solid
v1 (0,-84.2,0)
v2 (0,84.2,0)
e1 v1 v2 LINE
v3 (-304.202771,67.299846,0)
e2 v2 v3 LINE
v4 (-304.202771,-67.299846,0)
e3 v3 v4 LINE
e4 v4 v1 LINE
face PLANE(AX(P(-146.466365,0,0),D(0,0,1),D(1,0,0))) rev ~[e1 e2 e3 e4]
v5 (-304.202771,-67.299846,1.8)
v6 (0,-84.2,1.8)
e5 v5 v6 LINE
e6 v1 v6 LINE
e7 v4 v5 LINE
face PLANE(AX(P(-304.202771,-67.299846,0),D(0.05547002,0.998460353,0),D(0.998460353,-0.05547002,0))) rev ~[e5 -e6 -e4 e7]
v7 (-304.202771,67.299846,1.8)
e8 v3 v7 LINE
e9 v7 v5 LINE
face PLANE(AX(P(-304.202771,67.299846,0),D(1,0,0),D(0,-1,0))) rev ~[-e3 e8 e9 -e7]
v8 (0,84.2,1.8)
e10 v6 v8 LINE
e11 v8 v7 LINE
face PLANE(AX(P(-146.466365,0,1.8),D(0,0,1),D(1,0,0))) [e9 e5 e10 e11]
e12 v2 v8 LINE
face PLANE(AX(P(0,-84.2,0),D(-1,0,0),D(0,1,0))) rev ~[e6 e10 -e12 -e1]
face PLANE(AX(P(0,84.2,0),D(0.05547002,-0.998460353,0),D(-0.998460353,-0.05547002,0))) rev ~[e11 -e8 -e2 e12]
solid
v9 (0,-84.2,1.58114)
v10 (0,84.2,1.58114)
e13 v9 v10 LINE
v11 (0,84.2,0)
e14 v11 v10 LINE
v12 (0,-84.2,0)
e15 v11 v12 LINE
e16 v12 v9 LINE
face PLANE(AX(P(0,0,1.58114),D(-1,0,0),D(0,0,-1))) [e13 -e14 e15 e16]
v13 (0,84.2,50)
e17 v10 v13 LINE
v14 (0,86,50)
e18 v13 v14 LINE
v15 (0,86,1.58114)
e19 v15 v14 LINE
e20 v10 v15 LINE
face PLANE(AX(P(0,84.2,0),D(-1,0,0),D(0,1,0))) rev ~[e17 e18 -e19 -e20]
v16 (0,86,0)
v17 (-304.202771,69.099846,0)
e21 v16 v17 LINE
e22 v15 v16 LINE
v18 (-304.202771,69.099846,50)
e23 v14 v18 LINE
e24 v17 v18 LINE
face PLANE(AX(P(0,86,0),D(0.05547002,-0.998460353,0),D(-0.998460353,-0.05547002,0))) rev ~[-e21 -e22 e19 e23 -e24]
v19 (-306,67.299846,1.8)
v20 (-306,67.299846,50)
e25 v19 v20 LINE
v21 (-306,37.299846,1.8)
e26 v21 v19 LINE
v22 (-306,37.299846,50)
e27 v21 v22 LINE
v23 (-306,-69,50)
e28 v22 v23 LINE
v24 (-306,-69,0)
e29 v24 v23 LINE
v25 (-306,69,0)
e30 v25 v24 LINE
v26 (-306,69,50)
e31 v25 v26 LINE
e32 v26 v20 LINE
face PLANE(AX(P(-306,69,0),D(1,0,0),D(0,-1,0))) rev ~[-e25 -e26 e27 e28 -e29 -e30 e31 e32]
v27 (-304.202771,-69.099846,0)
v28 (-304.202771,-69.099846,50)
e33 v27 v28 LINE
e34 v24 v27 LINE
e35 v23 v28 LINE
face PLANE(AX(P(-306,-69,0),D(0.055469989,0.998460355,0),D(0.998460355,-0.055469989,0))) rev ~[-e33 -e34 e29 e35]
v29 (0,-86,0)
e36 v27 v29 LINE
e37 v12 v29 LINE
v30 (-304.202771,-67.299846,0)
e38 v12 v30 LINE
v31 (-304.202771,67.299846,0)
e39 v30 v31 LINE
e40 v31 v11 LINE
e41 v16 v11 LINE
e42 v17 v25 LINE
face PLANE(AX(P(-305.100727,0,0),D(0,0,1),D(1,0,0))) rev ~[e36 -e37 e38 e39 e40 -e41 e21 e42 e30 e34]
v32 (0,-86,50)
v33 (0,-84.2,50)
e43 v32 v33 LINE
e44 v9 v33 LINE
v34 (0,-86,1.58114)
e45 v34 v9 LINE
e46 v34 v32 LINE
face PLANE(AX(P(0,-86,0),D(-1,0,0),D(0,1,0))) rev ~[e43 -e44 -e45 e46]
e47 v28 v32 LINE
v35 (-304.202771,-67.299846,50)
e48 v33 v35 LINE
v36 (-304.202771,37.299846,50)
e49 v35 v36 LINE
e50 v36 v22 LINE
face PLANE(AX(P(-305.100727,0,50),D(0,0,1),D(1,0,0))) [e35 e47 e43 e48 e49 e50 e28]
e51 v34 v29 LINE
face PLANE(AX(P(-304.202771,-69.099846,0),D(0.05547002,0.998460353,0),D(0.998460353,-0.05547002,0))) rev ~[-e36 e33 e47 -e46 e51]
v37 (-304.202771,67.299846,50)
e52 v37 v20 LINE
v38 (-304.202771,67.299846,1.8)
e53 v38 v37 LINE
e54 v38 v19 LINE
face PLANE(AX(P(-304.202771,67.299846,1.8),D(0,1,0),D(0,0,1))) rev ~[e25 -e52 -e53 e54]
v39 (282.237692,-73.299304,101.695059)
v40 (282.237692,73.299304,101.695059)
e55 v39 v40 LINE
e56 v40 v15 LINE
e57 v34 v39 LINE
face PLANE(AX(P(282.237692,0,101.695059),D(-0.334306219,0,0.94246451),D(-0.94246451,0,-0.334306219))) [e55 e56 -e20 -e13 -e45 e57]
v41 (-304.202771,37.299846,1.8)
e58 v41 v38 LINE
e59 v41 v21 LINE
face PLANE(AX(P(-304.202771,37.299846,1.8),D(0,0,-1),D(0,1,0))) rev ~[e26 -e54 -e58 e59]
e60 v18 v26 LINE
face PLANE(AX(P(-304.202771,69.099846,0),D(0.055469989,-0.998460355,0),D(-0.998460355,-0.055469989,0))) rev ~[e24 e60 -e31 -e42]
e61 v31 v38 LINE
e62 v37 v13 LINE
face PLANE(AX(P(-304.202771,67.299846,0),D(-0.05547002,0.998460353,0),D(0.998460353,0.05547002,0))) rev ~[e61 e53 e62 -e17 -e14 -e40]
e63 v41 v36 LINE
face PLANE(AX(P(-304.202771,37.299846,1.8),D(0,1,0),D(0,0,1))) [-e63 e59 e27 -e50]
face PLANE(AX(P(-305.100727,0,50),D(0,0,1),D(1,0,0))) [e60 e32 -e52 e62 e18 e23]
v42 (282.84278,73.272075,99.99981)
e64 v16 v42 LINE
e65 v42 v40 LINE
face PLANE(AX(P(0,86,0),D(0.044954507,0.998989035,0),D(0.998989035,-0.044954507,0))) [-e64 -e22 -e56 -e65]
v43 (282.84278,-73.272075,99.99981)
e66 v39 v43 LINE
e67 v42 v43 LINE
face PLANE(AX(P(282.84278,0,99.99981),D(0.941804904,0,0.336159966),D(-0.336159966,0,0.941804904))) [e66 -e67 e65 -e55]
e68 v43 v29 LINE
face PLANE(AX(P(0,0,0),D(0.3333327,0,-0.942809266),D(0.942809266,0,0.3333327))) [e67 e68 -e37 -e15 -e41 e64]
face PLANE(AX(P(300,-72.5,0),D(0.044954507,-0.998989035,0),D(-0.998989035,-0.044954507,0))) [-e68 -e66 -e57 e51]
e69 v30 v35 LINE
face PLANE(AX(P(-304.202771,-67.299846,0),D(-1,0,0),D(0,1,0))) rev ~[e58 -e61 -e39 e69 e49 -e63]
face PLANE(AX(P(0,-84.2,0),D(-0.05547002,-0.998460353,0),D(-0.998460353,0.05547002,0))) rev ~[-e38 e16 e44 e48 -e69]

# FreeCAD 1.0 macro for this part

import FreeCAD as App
import Part
import Sketcher

V = App.Vector
Q = App.Units.Quantity

doc = App.newDocument("Part")
body = doc.addObject("PartDesign::Body", "Body")

# Sketch on XZ plane
sketch1 = doc.addObject("Sketcher::SketchObject", "Sketch")
body.addObject(sketch1)
sketch1.AttachmentSupport = (doc.XZ_Plane, [""])
sketch1.MapMode = "FlatFace"
sketch1.addGeometry([
    Part.LineSegment(V(0, 1.58114, 0), V(0, 0, 0)),
    Part.LineSegment(V(0, 0, 0), V(282.84278, 99.99981, 0)),
    Part.LineSegment(V(282.84278, 99.99981, 0), V(282.237692, 101.695059, 0)),
    Part.LineSegment(V(282.237692, 101.695059, 0), V(0, 1.58114, 0)),
], False)
sketch1.addConstraint([
    Sketcher.Constraint("Coincident", 0, 2, 1, 1),
    Sketcher.Constraint("Coincident", 1, 2, 2, 1),
    Sketcher.Constraint("Coincident", 2, 2, 3, 1),
    Sketcher.Constraint("Coincident", 3, 2, 0, 1),
    Sketcher.Constraint("Vertical", 0),
    Sketcher.Constraint("Coincident", 0, 2, -1, 1),
    Sketcher.Constraint("Distance", 1, Q("300 mm")),
    Sketcher.Constraint("Distance", 2, Q("1.8 mm")),
    Sketcher.Constraint("DistanceY", 0, 2, 0, 1, Q("1.58114 mm")),
    Sketcher.Constraint("DistanceX", -1, 1, 1, 2, Q("282.84278 mm")),
    Sketcher.Constraint("DistanceX", -1, 1, 2, 2, Q("282.237692 mm")),
])
pad1 = doc.addObject("PartDesign::Pad", "Pad")
body.addObject(pad1)
pad1.Profile = sketch1
pad1.Length = 172
pad1.Midplane = True

# Sketch on XY plane
sketch2 = doc.addObject("Sketcher::SketchObject", "Sketch001")
body.addObject(sketch2)
sketch2.AttachmentSupport = (doc.XY_Plane, [""])
sketch2.MapMode = "FlatFace"
sketch2.addGeometry([
    Part.LineSegment(V(300, -72.5, 0), V(0, -86, 0)),  # 0
    Part.LineSegment(V(0, -86, 0), V(300, -86, 0)),  # 1
    Part.LineSegment(V(300, -86, 0), V(300, -72.5, 0)),  # 2
    Part.LineSegment(V(300, 86, 0), V(0, 86, 0)),  # 3
    Part.LineSegment(V(0, 86, 0), V(300, 72.5, 0)),  # 4
    Part.LineSegment(V(300, 72.5, 0), V(300, 86, 0)),  # 5
], False)
sketch2.addConstraint([
    Sketcher.Constraint("Coincident", 0, 2, 1, 1),
    Sketcher.Constraint("Coincident", 1, 2, 2, 1),
    Sketcher.Constraint("Coincident", 2, 2, 0, 1),
    Sketcher.Constraint("Coincident", 3, 2, 4, 1),
    Sketcher.Constraint("Coincident", 4, 2, 5, 1),
    Sketcher.Constraint("Coincident", 5, 2, 3, 1),
    Sketcher.Constraint("Horizontal", 1),
    Sketcher.Constraint("Vertical", 2),
    Sketcher.Constraint("Horizontal", 3),
    Sketcher.Constraint("Vertical", 5),
    Sketcher.Constraint("Symmetric", 0, 2, 3, 2, -1, 1),
    Sketcher.Constraint("Symmetric", 2, 2, 4, 2, -1),
    Sketcher.Constraint("PointOnObject", 0, 2, -2),
    Sketcher.Constraint("DistanceX", 1, 1, 1, 2, Q("300 mm")),
    Sketcher.Constraint("DistanceY", 2, 1, 2, 2, Q("13.5 mm")),
    Sketcher.Constraint("DistanceY", 0, 2, -1, 1, Q("86 mm")),
])
pocket1 = doc.addObject("PartDesign::Pocket", "Pocket")
body.addObject(pocket1)
pocket1.Profile = sketch2
pocket1.Length = 121
pocket1.Reversed = True

# Sketch on XY plane
sketch3 = doc.addObject("Sketcher::SketchObject", "Sketch002")
body.addObject(sketch3)
sketch3.AttachmentSupport = (doc.XY_Plane, [""])
sketch3.MapMode = "FlatFace"
sketch3.addGeometry([
    Part.LineSegment(V(-306, -69, 0), V(-304.202771, -69.099846, 0)),  # 0
    Part.LineSegment(V(-304.202771, -69.099846, 0), V(0, -86, 0)),  # 1
    Part.LineSegment(V(0, -86, 0), V(0, -84.2, 0)),  # 2
    Part.LineSegment(V(0, -84.2, 0), V(-304.202771, -67.299846, 0)),  # 3
    Part.LineSegment(V(-304.202771, -67.299846, 0), V(-304.202771, 67.299846, 0)),  # 4
    Part.LineSegment(V(-304.202771, 67.299846, 0), V(0, 84.2, 0)),  # 5
    Part.LineSegment(V(0, 84.2, 0), V(0, 86, 0)),  # 6
    Part.LineSegment(V(0, 86, 0), V(-304.202771, 69.099846, 0)),  # 7
    Part.LineSegment(V(-304.202771, 69.099846, 0), V(-306, 69, 0)),  # 8
    Part.LineSegment(V(-306, 69, 0), V(-306, -69, 0)),  # 9
], False)
sketch3.addConstraint([
    Sketcher.Constraint("Coincident", 0, 2, 1, 1),
    Sketcher.Constraint("Coincident", 1, 2, 2, 1),
    Sketcher.Constraint("Coincident", 2, 2, 3, 1),
    Sketcher.Constraint("Coincident", 3, 2, 4, 1),
    Sketcher.Constraint("Coincident", 4, 2, 5, 1),
    Sketcher.Constraint("Coincident", 5, 2, 6, 1),
    Sketcher.Constraint("Coincident", 6, 2, 7, 1),
    Sketcher.Constraint("Coincident", 7, 2, 8, 1),
    Sketcher.Constraint("Coincident", 8, 2, 9, 1),
    Sketcher.Constraint("Coincident", 9, 2, 0, 1),
    Sketcher.Constraint("Vertical", 2),
    Sketcher.Constraint("Vertical", 4),
    Sketcher.Constraint("Vertical", 6),
    Sketcher.Constraint("Vertical", 9),
    Sketcher.Constraint("Symmetric", 2, 2, 5, 2, -1, 1),
    Sketcher.Constraint("Symmetric", 1, 2, 6, 2, -1),
    Sketcher.Constraint("Symmetric", 0, 2, 7, 2, -1),
    Sketcher.Constraint("Parallel", 0, 1),
    Sketcher.Constraint("Parallel", 1, 3),
    Sketcher.Constraint("Parallel", 5, 7),
    Sketcher.Constraint("Parallel", 7, 8),
    Sketcher.Constraint("Vertical", 0, 2, 3, 2),
    Sketcher.Constraint("DistanceY", 9, 2, 9, 1, Q("138 mm")),
    Sketcher.Constraint("DistanceY", 2, 1, 2, 2, Q("1.8 mm")),
    Sketcher.Constraint("DistanceY", 1, 2, -1, 1, Q("86 mm")),
    Sketcher.Constraint("DistanceX", 8, 2, -1, 1, Q("306 mm")),
    Sketcher.Constraint("Distance", 0, Q("1.8 mm")),
])
pad2 = doc.addObject("PartDesign::Pad", "Pad001")
body.addObject(pad2)
pad2.Profile = sketch3
pad2.Length = 50

# Sketch on YZ plane
sketch4 = doc.addObject("Sketcher::SketchObject", "Sketch003")
body.addObject(sketch4)
sketch4.AttachmentSupport = (doc.YZ_Plane, [""])
sketch4.MapMode = "FlatFace"
sketch4.AttachmentOffset = App.Placement(V(0, 0, -304.202771), App.Rotation())
sketch4.addGeometry([
    Part.LineSegment(V(37.299846, 50, 0), V(37.299846, 1.8, 0)),
    Part.LineSegment(V(37.299846, 1.8, 0), V(67.299846, 1.8, 0)),
    Part.LineSegment(V(67.299846, 1.8, 0), V(67.299846, 50, 0)),
    Part.LineSegment(V(67.299846, 50, 0), V(37.299846, 50, 0)),
], False)
sketch4.addConstraint([
    Sketcher.Constraint("Coincident", 0, 2, 1, 1),
    Sketcher.Constraint("Coincident", 1, 2, 2, 1),
    Sketcher.Constraint("Coincident", 2, 2, 3, 1),
    Sketcher.Constraint("Coincident", 3, 2, 0, 1),
    Sketcher.Constraint("Vertical", 0),
    Sketcher.Constraint("Horizontal", 1),
    Sketcher.Constraint("Vertical", 2),
    Sketcher.Constraint("Horizontal", 3),
    Sketcher.Constraint("DistanceX", 1, 1, 1, 2, Q("30 mm")),
    Sketcher.Constraint("DistanceY", 0, 2, 0, 1, Q("48.2 mm")),
    Sketcher.Constraint("DistanceY", -1, 1, 2, 2, Q("50 mm")),
    Sketcher.Constraint("DistanceX", -1, 1, 0, 2, Q("37.299846 mm")),
])
pocket2 = doc.addObject("PartDesign::Pocket", "Pocket001")
body.addObject(pocket2)
pocket2.Profile = sketch4
pocket2.Length = 25
body2 = doc.addObject("PartDesign::Body", "Body001")

# Sketch on XY plane
sketch5 = doc.addObject("Sketcher::SketchObject", "Sketch004")
body2.addObject(sketch5)
sketch5.AttachmentSupport = (doc.getObject("XY_Plane001"), [""])
sketch5.MapMode = "FlatFace"
sketch5.addGeometry([
    Part.LineSegment(V(-304.202771, 67.299846, 0), V(-304.202771, -67.299846, 0)),
    Part.LineSegment(V(-304.202771, -67.299846, 0), V(0, -84.2, 0)),
    Part.LineSegment(V(0, -84.2, 0), V(0, 84.2, 0)),
    Part.LineSegment(V(0, 84.2, 0), V(-304.202771, 67.299846, 0)),
], False)
sketch5.addConstraint([
    Sketcher.Constraint("Coincident", 0, 2, 1, 1),
    Sketcher.Constraint("Coincident", 1, 2, 2, 1),
    Sketcher.Constraint("Coincident", 2, 2, 3, 1),
    Sketcher.Constraint("Coincident", 3, 2, 0, 1),
    Sketcher.Constraint("Vertical", 0),
    Sketcher.Constraint("Vertical", 2),
    Sketcher.Constraint("Symmetric", 1, 2, 2, 2, -1, 1),
    Sketcher.Constraint("Equal", 1, 3),
    Sketcher.Constraint("DistanceY", 2, 1, 2, 2, Q("168.4 mm")),
    Sketcher.Constraint("DistanceY", 0, 2, 0, 1, Q("134.599692 mm")),
    Sketcher.Constraint("Distance", 1, Q("304.671858 mm")),
])
pad3 = doc.addObject("PartDesign::Pad", "Pad002")
body2.addObject(pad3)
pad3.Profile = sketch5
pad3.Length = 1.8

doc.recompute()
